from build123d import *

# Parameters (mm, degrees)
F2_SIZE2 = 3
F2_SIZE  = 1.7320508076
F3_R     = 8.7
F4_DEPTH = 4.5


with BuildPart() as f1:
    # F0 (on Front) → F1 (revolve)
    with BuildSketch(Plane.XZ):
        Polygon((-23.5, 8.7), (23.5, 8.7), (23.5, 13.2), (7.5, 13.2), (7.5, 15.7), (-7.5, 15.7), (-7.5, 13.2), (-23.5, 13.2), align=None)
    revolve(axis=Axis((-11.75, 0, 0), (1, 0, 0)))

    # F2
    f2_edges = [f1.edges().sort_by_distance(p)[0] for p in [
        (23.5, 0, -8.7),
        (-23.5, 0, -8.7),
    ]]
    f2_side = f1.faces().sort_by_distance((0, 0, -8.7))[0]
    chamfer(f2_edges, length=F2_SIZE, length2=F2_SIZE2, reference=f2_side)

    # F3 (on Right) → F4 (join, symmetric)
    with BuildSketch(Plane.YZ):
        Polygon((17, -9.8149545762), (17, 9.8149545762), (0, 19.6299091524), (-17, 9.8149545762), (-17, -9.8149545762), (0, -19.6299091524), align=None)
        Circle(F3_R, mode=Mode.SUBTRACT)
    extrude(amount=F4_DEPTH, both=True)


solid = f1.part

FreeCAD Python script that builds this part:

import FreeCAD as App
import Part
import Sketcher
from FreeCAD import Vector
Q = App.Units.Quantity


def edges_at(feature, points):
    """Names of the edges that pass closest to the given points."""
    edges = feature.Shape.Edges
    near = lambda p: min(range(len(edges)), key=lambda i: edges[i].distToShape(Part.Vertex(*p))[0])
    return sorted({f"Edge{near(p) + 1}" for p in points})


def add_polygon(sketch, points):
    """Adds a closed chain of lines whose ends are joined by coincident constraints."""
    first, n = sketch.GeometryCount, len(points)
    for a, b in zip(points, points[1:] + points[:1]):
        sketch.addGeometry(Part.LineSegment(App.Vector(*a, 0), App.Vector(*b, 0)), False)
    for i in range(n):
        sketch.addConstraint(Sketcher.Constraint("Coincident", first + i, 2, first + (i + 1) % n, 1))

doc = App.newDocument("Part")
params = doc.addObject("Spreadsheet::Sheet", "Params")
for row, (alias, value) in enumerate([
    ("sketch1_width", "47 mm"),
    ("sketch1_width2", "16 mm"),
    ("sketch1_height", "4.5 mm"),
    ("sketch1_height2", "2.5 mm"),
    ("revolution_angle", "360 deg"),
    ("chamfer_size", "1.732051 mm"),
    ("chamfer_size2", "3 mm"),
    ("sketch2_diameter", "17.4 mm"),
    ("pad1_length", "9 mm"),
], start=1):
    params.set(f"A{row}", alias)
    params.set(f"B{row}", "=" + value)
    params.setAlias(f"B{row}", alias)

body = doc.addObject("PartDesign::Body", "Body")

# Sketch on XZ plane
sketch1 = body.newObject("Sketcher::SketchObject", "Sketch")
sketch1.AttachmentSupport = (doc.getObject("XZ_Plane"), [""])
sketch1.MapMode = "FlatFace"
add_polygon(sketch1, [(-23.5, 8.7), (23.5, 8.7), (23.5, 13.2), (7.5, 13.2), (7.5, 15.7), (-7.5, 15.7), (-7.5, 13.2), (-23.5, 13.2)])  # lines 0-7
sketch1.addConstraint([
    Sketcher.Constraint("Horizontal", 0),
    Sketcher.Constraint("Vertical", 1),
    Sketcher.Constraint("Horizontal", 2),
    Sketcher.Constraint("Vertical", 3),
    Sketcher.Constraint("Horizontal", 4),
    Sketcher.Constraint("Vertical", 5),
    Sketcher.Constraint("Horizontal", 6),
    Sketcher.Constraint("Vertical", 7),
    Sketcher.Constraint("Symmetric", 2, 2, 5, 2, -2),
    Sketcher.Constraint("Equal", 2, 6),
    Sketcher.Constraint("DistanceX", 0, 1, 0, 2, Q("47 mm")),
    Sketcher.Constraint("DistanceX", 2, 2, 2, 1, Q("16 mm")),
    Sketcher.Constraint("DistanceY", 1, 1, 1, 2, Q("4.5 mm")),
    Sketcher.Constraint("DistanceY", 3, 1, 3, 2, Q("2.5 mm")),
    Sketcher.Constraint("DistanceY", -1, 1, 0, 2, Q("8.7 mm")),
])
sketch1.setExpression("Constraints[18]", "Params.sketch1_width")
sketch1.setExpression("Constraints[19]", "Params.sketch1_width2")
sketch1.setExpression("Constraints[20]", "Params.sketch1_height")
sketch1.setExpression("Constraints[21]", "Params.sketch1_height2")
revolution = body.newObject("PartDesign::Revolution", "Revolution")
revolution.Profile = sketch1
revolution.ReferenceAxis = (sketch1, ["H_Axis"])
revolution.setExpression("Angle", "Params.revolution_angle")
doc.recompute()

chamfer = body.newObject("PartDesign::Chamfer", "Chamfer")
chamfer.Base = (revolution, edges_at(revolution, [(23.5, 0, -8.7), (-23.5, 0, -8.7)]))
chamfer.ChamferType = "Two distances"
chamfer.setExpression("Size", "Params.chamfer_size")
chamfer.setExpression("Size2", "Params.chamfer_size2")

# Sketch on YZ plane
sketch2 = body.newObject("Sketcher::SketchObject", "Sketch001")
sketch2.AttachmentSupport = (doc.getObject("YZ_Plane"), [""])
sketch2.MapMode = "FlatFace"
add_polygon(sketch2, [(17, -10), (17, 10), (0, 20), (-17, 10), (-17, -10), (0, -20)])  # lines 0-5
sketch2.addGeometry(Part.Circle(Vector(0, 0, 0), Vector(0, 0, 1), 9), False)  # 6
sketch2.addConstraint([
    Sketcher.Constraint("Vertical", 0),
    Sketcher.Constraint("Vertical", 3),
    Sketcher.Constraint("Coincident", 6, 3, -1, 1),
    Sketcher.Constraint("Symmetric", 0, 2, 3, 2, -1, 1),
    Sketcher.Constraint("Symmetric", 1, 2, 4, 2, -1, 1),
    Sketcher.Constraint("PointOnObject", 1, 2, -2),
    Sketcher.Constraint("Parallel", 2, 5),
    Sketcher.Constraint("Horizontal", 0, 2, 2, 2),
    Sketcher.Constraint("Diameter", 6, Q("17.4 mm")),
    Sketcher.Constraint("Angle", 1, Q("150 deg")),
    Sketcher.Constraint("DistanceX", -1, 1, 0, 2, Q("17 mm")),
    Sketcher.Constraint("DistanceY", 0, 1, 0, 2, Q("19.629909 mm")),
])
sketch2.setExpression("Constraints[14]", "Params.sketch2_diameter")
pad1 = body.newObject("PartDesign::Pad", "Pad")
pad1.Profile = sketch2
pad1.setExpression("Length", "Params.pad1_length")
pad1.Midplane = True

doc.recompute()
